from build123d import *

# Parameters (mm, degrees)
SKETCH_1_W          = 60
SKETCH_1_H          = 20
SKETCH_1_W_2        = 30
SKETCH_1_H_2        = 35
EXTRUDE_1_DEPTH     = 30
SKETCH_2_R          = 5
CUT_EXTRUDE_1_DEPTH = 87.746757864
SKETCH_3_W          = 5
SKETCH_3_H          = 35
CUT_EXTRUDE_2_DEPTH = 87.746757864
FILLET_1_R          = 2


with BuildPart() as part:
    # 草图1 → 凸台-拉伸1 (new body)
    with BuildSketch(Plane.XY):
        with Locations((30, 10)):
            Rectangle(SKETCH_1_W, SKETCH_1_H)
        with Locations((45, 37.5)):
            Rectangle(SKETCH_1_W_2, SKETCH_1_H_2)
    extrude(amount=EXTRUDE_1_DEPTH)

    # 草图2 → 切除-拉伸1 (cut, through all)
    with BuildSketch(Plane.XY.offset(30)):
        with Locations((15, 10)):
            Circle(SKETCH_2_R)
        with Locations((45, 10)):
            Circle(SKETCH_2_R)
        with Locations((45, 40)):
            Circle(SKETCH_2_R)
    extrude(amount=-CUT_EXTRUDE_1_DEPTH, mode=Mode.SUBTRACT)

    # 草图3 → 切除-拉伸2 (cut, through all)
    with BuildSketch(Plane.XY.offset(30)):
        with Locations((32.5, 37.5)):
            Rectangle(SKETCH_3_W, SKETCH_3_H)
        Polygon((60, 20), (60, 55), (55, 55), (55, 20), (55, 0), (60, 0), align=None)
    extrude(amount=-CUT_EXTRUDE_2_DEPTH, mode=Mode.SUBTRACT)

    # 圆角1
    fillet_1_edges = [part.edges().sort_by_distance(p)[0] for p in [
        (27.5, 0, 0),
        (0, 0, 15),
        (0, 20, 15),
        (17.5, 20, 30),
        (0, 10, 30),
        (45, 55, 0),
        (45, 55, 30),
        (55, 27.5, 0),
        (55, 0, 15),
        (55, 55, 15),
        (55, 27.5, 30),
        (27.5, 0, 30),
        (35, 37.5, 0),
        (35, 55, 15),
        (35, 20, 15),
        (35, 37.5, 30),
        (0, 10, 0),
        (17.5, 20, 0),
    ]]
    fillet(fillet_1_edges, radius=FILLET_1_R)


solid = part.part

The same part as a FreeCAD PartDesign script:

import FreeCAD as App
import Part
import Sketcher


def edges_at(feature, points):
    """Names of the edges that pass closest to the given points."""
    edges = feature.Shape.Edges
    near = lambda p: min(range(len(edges)), key=lambda i: edges[i].distToShape(Part.Vertex(*p))[0])
    return sorted({f"Edge{near(p) + 1}" for p in points})

doc = App.newDocument("Part")
params = doc.addObject("Spreadsheet::Sheet", "Params")
for row, (alias, value) in enumerate([
    ("sketch1_width", "60 mm"),
    ("sketch1_height", "20 mm"),
    ("sketch1_height2", "55 mm"),
    ("pad1_length", "30 mm"),
    ("sketch2_diameter", "10 mm"),
    ("sketch3_width", "5 mm"),
    ("sketch3_height", "35 mm"),
    ("sketch3_height2", "55 mm"),
    ("fillet_radius", "2 mm"),
], start=1):
    params.set(f"A{row}", alias)
    params.set(f"B{row}", "=" + value)
    params.setAlias(f"B{row}", alias)

body = doc.addObject("PartDesign::Body", "Body")

# Sketch on XY plane
sketch1 = body.newObject("Sketcher::SketchObject", "Sketch")
sketch1.AttachmentSupport = (doc.getObject("XY_Plane"), [""])
sketch1.MapMode = "FlatFace"
sketch1.addGeometry([
    Part.LineSegment(App.Vector(0, 20, 0), App.Vector(0, 0, 0)),  # 0
    Part.LineSegment(App.Vector(0, 0, 0), App.Vector(60, 0, 0)),  # 1
    Part.LineSegment(App.Vector(60, 0, 0), App.Vector(60, 55, 0)),  # 2
    Part.LineSegment(App.Vector(60, 55, 0), App.Vector(30, 55, 0)),  # 3
    Part.LineSegment(App.Vector(30, 55, 0), App.Vector(30, 20, 0)),  # 4
    Part.LineSegment(App.Vector(30, 20, 0), App.Vector(0, 20, 0)),  # 5
], False)
sketch1.addConstraint([
    Sketcher.Constraint("Coincident", 0, 2, 1, 1),
    Sketcher.Constraint("Coincident", 1, 2, 2, 1),
    Sketcher.Constraint("Coincident", 2, 2, 3, 1),
    Sketcher.Constraint("Coincident", 3, 2, 4, 1),
    Sketcher.Constraint("Coincident", 4, 2, 5, 1),
    Sketcher.Constraint("Coincident", 5, 2, 0, 1),
    Sketcher.Constraint("Vertical", 0),
    Sketcher.Constraint("Horizontal", 1),
    Sketcher.Constraint("Vertical", 2),
    Sketcher.Constraint("Horizontal", 3),
    Sketcher.Constraint("Vertical", 4),
    Sketcher.Constraint("Horizontal", 5),
    Sketcher.Constraint("Coincident", 0, 2, -1, 1),
    Sketcher.Constraint("Equal", 3, 5),
    Sketcher.Constraint("DistanceX", 1, 1, 1, 2, 60.0),
    Sketcher.Constraint("DistanceY", 0, 2, 0, 1, 20.0),
    Sketcher.Constraint("DistanceY", 2, 1, 2, 2, 55.0),
])
sketch1.setExpression("Constraints[14]", "Params.sketch1_width")
sketch1.setExpression("Constraints[15]", "Params.sketch1_height")
sketch1.setExpression("Constraints[16]", "Params.sketch1_height2")
pad1 = body.newObject("PartDesign::Pad", "Pad")
pad1.Profile = sketch1
pad1.setExpression("Length", "Params.pad1_length")

# Sketch on XY plane
sketch2 = body.newObject("Sketcher::SketchObject", "Sketch001")
sketch2.AttachmentSupport = (doc.getObject("XY_Plane"), [""])
sketch2.MapMode = "FlatFace"
sketch2.AttachmentOffset = App.Placement(App.Vector(0, 0, 30), App.Rotation())
sketch2.addGeometry([
    Part.Circle(App.Vector(15, 10, 0), App.Vector(0, 0, 1), 5),
    Part.Circle(App.Vector(45, 10, 0), App.Vector(0, 0, 1), 5),
    Part.Circle(App.Vector(45, 40, 0), App.Vector(0, 0, 1), 5),
], False)
sketch2.addConstraint([
    Sketcher.Constraint("Equal", 0, 1),
    Sketcher.Constraint("Equal", 1, 2),
    Sketcher.Constraint("Horizontal", 0, 3, 1, 3),
    Sketcher.Constraint("Vertical", 1, 3, 2, 3),
    Sketcher.Constraint("Diameter", 0, 10.0),
    Sketcher.Constraint("DistanceX", -1, 1, 0, 3, 15.0),
    Sketcher.Constraint("DistanceY", -1, 1, 0, 3, 10.0),
    Sketcher.Constraint("DistanceX", -1, 1, 1, 3, 45.0),
    Sketcher.Constraint("DistanceY", -1, 1, 2, 3, 40.0),
])
sketch2.setExpression("Constraints[4]", "Params.sketch2_diameter")
pocket1 = body.newObject("PartDesign::Pocket", "Pocket")
pocket1.Profile = sketch2
pocket1.Type = "ThroughAll"

# Sketch on XY plane
sketch3 = body.newObject("Sketcher::SketchObject", "Sketch002")
sketch3.AttachmentSupport = (doc.getObject("XY_Plane"), [""])
sketch3.MapMode = "FlatFace"
sketch3.AttachmentOffset = App.Placement(App.Vector(0, 0, 30), App.Rotation())
sketch3.addGeometry([
    Part.LineSegment(App.Vector(30, 55, 0), App.Vector(30, 20, 0)),  # 0
    Part.LineSegment(App.Vector(30, 20, 0), App.Vector(35, 20, 0)),  # 1
    Part.LineSegment(App.Vector(35, 20, 0), App.Vector(35, 55, 0)),  # 2
    Part.LineSegment(App.Vector(35, 55, 0), App.Vector(30, 55, 0)),  # 3
    Part.LineSegment(App.Vector(60, 55, 0), App.Vector(55, 55, 0)),  # 4
    Part.LineSegment(App.Vector(55, 55, 0), App.Vector(55, 0, 0)),  # 5
    Part.LineSegment(App.Vector(55, 0, 0), App.Vector(60, 0, 0)),  # 6
    Part.LineSegment(App.Vector(60, 0, 0), App.Vector(60, 55, 0)),  # 7
], False)
sketch3.addConstraint([
    Sketcher.Constraint("Coincident", 0, 2, 1, 1),
    Sketcher.Constraint("Coincident", 1, 2, 2, 1),
    Sketcher.Constraint("Coincident", 2, 2, 3, 1),
    Sketcher.Constraint("Coincident", 3, 2, 0, 1),
    Sketcher.Constraint("Coincident", 4, 2, 5, 1),
    Sketcher.Constraint("Coincident", 5, 2, 6, 1),
    Sketcher.Constraint("Coincident", 6, 2, 7, 1),
    Sketcher.Constraint("Coincident", 7, 2, 4, 1),
    Sketcher.Constraint("Vertical", 0),
    Sketcher.Constraint("Horizontal", 1),
    Sketcher.Constraint("Vertical", 2),
    Sketcher.Constraint("Horizontal", 3),
    Sketcher.Constraint("Horizontal", 4),
    Sketcher.Constraint("Vertical", 5),
    Sketcher.Constraint("Horizontal", 6),
    Sketcher.Constraint("Vertical", 7),
    Sketcher.Constraint("PointOnObject", 5, 2, -1),
    Sketcher.Constraint("Horizontal", 3, 2, 4, 2),
    Sketcher.Constraint("Equal", 3, 4),
    Sketcher.Constraint("DistanceX", 1, 1, 1, 2, 5.0),
    Sketcher.Constraint("DistanceY", 0, 2, 0, 1, 35.0),
    Sketcher.Constraint("DistanceY", 5, 2, 5, 1, 55.0),
    Sketcher.Constraint("DistanceX", -1, 1, 0, 2, 30.0),
    Sketcher.Constraint("DistanceX", -1, 1, 4, 2, 55.0),
])
sketch3.setExpression("Constraints[19]", "Params.sketch3_width")
sketch3.setExpression("Constraints[20]", "Params.sketch3_height")
sketch3.setExpression("Constraints[21]", "Params.sketch3_height2")
pocket2 = body.newObject("PartDesign::Pocket", "Pocket001")
pocket2.Profile = sketch3
pocket2.Type = "ThroughAll"
doc.recompute()

fillet = body.newObject("PartDesign::Fillet", "Fillet")
fillet.Base = (pocket2, edges_at(pocket2, [
    (27.5, 0, 0),
    (0, 0, 15),
    (0, 20, 15),
    (17.5, 20, 30),
    (0, 10, 30),
    (45, 55, 0),
    (45, 55, 30),
    (55, 27.5, 0),
    (55, 0, 15),
    (55, 55, 15),
    (55, 27.5, 30),
    (27.5, 0, 30),
    (35, 37.5, 0),
    (35, 55, 15),
    (35, 20, 15),
    (35, 37.5, 30),
    (0, 10, 0),
    (17.5, 20, 0),
]))
fillet.setExpression("Radius", "Params.fillet_radius")

doc.recompute()
